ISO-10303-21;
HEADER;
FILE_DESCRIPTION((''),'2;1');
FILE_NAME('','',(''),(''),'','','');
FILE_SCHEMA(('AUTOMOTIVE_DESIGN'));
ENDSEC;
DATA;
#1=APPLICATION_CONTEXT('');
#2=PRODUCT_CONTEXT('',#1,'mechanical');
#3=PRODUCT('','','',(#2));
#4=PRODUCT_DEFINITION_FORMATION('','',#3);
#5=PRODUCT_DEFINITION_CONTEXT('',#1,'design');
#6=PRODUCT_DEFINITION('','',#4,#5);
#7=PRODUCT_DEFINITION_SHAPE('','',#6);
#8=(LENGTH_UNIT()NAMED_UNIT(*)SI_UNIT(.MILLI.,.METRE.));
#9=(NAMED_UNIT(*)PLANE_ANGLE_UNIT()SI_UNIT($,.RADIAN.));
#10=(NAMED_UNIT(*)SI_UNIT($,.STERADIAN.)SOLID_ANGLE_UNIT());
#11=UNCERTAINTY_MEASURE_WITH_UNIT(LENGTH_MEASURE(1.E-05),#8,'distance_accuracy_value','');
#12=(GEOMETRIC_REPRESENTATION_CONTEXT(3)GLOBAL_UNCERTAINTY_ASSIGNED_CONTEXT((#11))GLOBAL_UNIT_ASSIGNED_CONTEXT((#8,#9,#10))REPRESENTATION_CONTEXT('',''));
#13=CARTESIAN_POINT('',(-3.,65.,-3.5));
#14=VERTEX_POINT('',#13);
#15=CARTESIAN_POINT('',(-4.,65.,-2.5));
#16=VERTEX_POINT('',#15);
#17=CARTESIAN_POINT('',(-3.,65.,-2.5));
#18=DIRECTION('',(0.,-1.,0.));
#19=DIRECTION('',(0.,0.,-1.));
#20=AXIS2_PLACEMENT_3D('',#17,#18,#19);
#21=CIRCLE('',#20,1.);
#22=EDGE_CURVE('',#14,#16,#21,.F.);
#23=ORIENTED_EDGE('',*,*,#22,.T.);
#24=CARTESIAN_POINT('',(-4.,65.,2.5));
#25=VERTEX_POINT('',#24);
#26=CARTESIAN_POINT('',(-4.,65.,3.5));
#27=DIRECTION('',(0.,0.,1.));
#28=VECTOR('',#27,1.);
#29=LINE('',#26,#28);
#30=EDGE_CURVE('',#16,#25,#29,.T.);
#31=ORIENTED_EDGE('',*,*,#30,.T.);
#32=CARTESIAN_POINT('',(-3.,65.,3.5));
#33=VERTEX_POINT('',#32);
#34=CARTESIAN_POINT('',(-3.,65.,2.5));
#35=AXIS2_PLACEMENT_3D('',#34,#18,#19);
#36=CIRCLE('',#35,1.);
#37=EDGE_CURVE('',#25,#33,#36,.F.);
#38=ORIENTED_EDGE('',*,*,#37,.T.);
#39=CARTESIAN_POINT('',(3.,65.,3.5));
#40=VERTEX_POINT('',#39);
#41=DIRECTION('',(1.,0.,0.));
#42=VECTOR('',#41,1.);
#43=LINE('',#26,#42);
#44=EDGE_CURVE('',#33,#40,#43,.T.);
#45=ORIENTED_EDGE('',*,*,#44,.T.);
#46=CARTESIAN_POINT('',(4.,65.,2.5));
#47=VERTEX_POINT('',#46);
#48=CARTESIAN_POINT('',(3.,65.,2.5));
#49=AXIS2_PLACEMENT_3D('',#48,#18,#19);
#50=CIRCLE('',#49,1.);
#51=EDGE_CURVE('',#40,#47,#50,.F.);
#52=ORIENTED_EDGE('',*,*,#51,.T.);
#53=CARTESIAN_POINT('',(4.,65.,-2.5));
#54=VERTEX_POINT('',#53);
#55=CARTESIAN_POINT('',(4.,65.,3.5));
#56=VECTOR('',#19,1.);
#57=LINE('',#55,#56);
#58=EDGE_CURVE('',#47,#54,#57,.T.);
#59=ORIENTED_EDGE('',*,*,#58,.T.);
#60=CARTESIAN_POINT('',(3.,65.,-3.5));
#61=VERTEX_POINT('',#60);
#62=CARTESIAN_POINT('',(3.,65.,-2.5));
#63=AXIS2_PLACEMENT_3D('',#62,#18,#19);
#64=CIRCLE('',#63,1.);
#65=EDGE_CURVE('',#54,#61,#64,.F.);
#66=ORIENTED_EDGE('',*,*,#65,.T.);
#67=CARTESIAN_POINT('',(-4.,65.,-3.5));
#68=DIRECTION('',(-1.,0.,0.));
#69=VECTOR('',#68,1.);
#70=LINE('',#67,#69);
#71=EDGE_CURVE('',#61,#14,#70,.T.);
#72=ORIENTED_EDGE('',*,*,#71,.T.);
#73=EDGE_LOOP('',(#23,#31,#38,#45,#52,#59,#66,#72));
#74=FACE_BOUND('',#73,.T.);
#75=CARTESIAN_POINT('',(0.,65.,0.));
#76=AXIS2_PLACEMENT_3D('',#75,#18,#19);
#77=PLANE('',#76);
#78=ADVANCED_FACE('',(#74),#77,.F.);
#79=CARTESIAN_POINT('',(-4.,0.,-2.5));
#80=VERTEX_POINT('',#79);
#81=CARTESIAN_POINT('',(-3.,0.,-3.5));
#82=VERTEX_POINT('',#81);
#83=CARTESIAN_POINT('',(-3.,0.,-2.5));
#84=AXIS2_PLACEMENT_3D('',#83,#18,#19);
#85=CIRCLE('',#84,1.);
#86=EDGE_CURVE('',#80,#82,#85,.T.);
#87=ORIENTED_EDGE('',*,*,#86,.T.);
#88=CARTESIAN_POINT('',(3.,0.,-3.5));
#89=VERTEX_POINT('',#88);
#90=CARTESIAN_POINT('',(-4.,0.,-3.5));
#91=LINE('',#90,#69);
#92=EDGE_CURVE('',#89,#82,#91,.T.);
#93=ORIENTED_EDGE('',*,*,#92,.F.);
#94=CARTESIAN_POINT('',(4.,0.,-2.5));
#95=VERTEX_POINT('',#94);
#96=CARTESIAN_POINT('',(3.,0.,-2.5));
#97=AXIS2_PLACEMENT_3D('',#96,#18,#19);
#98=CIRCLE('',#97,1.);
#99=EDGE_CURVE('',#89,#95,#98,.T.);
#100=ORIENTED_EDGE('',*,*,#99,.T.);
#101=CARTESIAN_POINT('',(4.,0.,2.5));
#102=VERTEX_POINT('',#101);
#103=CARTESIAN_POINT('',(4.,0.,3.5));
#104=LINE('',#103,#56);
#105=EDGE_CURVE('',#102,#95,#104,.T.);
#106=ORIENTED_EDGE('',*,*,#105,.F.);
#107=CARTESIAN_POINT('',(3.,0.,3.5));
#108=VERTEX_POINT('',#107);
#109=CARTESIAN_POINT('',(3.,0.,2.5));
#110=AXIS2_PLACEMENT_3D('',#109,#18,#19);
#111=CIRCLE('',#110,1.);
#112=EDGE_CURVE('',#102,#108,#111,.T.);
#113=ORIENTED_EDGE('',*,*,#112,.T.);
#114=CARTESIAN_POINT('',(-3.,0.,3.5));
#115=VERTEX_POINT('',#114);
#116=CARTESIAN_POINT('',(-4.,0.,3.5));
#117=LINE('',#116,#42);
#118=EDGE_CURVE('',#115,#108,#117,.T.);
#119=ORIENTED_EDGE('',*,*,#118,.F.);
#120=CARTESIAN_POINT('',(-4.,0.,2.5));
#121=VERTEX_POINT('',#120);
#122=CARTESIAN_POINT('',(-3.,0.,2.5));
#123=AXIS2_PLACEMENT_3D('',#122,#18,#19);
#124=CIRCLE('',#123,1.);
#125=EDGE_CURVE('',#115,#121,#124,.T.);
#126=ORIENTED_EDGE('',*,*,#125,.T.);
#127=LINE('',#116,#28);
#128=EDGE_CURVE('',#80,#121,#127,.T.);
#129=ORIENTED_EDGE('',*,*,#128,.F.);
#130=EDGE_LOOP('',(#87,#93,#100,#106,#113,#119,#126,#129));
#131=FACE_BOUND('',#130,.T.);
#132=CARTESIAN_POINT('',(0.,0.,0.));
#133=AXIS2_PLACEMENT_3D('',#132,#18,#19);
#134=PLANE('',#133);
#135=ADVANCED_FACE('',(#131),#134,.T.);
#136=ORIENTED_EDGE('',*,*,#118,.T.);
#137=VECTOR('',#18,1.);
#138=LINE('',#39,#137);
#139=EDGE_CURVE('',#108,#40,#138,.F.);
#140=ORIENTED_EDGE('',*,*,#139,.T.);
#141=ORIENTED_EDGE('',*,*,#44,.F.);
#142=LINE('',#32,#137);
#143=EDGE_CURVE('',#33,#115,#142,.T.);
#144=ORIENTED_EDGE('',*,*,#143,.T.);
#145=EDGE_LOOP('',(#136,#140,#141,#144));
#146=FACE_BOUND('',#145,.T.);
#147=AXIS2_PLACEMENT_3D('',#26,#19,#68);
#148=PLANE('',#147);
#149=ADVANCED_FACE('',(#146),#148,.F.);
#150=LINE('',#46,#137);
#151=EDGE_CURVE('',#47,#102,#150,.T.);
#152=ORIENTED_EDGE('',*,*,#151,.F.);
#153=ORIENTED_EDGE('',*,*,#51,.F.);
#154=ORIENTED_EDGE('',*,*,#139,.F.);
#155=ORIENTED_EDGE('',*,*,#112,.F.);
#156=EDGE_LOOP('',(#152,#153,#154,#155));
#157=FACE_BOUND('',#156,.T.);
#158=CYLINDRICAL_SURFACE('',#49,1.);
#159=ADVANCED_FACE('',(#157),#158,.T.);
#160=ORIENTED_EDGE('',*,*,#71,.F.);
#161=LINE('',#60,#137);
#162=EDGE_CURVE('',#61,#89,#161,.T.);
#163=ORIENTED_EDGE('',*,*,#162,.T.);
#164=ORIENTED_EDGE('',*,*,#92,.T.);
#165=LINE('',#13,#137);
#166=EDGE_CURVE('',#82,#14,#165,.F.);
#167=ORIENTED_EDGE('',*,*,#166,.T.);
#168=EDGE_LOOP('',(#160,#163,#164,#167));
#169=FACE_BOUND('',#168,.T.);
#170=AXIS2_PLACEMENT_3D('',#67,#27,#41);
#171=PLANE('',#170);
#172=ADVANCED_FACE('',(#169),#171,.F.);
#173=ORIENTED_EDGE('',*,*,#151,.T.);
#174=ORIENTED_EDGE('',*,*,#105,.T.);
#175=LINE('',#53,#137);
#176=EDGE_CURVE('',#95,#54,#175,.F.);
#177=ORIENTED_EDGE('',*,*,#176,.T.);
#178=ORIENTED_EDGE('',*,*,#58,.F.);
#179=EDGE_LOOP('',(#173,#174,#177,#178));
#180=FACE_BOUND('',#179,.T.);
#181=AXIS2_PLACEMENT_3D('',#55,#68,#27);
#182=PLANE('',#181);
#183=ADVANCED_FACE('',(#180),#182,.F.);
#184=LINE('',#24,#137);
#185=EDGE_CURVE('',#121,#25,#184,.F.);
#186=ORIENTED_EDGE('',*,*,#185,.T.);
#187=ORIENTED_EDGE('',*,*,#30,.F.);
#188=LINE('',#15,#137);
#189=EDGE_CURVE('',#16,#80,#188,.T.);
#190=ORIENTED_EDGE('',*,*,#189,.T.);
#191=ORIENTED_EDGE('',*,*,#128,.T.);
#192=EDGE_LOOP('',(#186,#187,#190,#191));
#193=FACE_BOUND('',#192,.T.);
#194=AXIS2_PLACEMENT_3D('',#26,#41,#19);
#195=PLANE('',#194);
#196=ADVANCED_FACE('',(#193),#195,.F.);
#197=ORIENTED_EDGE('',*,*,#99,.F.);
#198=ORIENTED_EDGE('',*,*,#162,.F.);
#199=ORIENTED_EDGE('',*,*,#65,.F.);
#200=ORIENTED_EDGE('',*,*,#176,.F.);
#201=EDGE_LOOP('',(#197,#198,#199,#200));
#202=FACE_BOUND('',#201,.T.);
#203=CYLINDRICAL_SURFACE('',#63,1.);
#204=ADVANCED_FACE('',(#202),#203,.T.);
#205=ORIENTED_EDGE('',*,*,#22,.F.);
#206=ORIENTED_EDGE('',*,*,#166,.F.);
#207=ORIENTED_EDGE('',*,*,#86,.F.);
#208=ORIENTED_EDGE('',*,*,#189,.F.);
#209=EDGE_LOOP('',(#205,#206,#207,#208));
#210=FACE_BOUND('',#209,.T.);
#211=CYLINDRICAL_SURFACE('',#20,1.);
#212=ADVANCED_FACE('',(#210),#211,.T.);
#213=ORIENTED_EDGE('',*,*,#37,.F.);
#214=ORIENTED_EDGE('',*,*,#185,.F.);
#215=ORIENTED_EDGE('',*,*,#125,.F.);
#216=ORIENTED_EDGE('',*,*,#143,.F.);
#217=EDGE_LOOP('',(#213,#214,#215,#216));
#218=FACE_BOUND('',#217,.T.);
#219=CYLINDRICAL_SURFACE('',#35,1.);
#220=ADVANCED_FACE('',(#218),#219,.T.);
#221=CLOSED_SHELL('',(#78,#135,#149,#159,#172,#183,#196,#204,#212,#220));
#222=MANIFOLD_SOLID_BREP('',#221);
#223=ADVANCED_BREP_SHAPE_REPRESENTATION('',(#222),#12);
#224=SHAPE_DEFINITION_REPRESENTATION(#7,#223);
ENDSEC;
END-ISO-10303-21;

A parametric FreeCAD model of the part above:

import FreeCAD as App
import Part
import Sketcher
from FreeCAD import Vector
Q = App.Units.Quantity


def edges_at(feature, points):
    """Names of the edges that pass closest to the given points."""
    edges = feature.Shape.Edges
    near = lambda p: min(range(len(edges)), key=lambda i: edges[i].distToShape(Part.Vertex(*p))[0])
    return sorted({f"Edge{near(p) + 1}" for p in points})

doc = App.newDocument("Part")
body = doc.addObject("PartDesign::Body", "Body")

# Sketch on XZ plane
sketch1 = doc.addObject("Sketcher::SketchObject", "Sketch")
body.addObject(sketch1)
sketch1.AttachmentSupport = (doc.XZ_Plane, [""])
sketch1.MapMode = "FlatFace"
sketch1.addGeometry([
    Part.LineSegment(Vector(-4, -4, 0), Vector(-4, 4, 0)),
    Part.LineSegment(Vector(-4, 4, 0), Vector(4, 4, 0)),
    Part.LineSegment(Vector(4, 4, 0), Vector(4, -4, 0)),
    Part.LineSegment(Vector(4, -4, 0), Vector(-4, -4, 0)),
], False)
sketch1.addConstraint([
    Sketcher.Constraint("Coincident", 0, 2, 1, 1),
    Sketcher.Constraint("Coincident", 1, 2, 2, 1),
    Sketcher.Constraint("Coincident", 2, 2, 3, 1),
    Sketcher.Constraint("Coincident", 3, 2, 0, 1),
    Sketcher.Constraint("Vertical", 0),
    Sketcher.Constraint("Horizontal", 1),
    Sketcher.Constraint("Vertical", 2),
    Sketcher.Constraint("Horizontal", 3),
    Sketcher.Constraint("Symmetric", 0, 2, 2, 2, -1, 1),
    Sketcher.Constraint("DistanceX", 1, 1, 1, 2, Q("8 mm")),
    Sketcher.Constraint("DistanceY", 0, 1, 0, 2, Q("7 mm")),
])
pad1 = doc.addObject("PartDesign::Pad", "Pad")
body.addObject(pad1)
pad1.Profile = sketch1
pad1.Length = 65
pad1.Reversed = True
doc.recompute()

fillet = doc.addObject("PartDesign::Fillet", "Fillet")
body.addObject(fillet)
fillet.Base = (pad1, edges_at(pad1, [
    (4, 32.5, 3.5),
    (-4, 32.5, 3.5),
    (-4, 32.5, -3.5),
    (4, 32.5, -3.5),
]))
fillet.Radius = 1

doc.recompute()
